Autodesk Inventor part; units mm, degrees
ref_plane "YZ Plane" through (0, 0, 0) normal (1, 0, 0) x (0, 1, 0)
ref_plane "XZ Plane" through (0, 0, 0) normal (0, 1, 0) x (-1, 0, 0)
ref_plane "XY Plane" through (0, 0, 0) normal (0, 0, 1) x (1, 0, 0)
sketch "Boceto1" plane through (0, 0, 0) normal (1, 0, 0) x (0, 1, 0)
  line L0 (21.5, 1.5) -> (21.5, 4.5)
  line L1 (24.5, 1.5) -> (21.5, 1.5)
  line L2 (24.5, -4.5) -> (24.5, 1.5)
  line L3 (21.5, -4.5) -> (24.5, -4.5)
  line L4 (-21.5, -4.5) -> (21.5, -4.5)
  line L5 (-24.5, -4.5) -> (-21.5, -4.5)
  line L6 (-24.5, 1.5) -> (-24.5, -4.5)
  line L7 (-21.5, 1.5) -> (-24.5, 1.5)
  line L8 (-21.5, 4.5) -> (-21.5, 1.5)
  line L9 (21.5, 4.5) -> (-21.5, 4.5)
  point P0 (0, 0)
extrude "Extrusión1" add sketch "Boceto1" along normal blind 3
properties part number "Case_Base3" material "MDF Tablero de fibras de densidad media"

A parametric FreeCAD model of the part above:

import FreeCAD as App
import Part
import Sketcher
Q = App.Units.Quantity


def add_polygon(sketch, points):
    """Adds a closed chain of lines whose ends are joined by coincident constraints."""
    first, n = sketch.GeometryCount, len(points)
    for a, b in zip(points, points[1:] + points[:1]):
        sketch.addGeometry(Part.LineSegment(App.Vector(*a, 0), App.Vector(*b, 0)), False)
    for i in range(n):
        sketch.addConstraint(Sketcher.Constraint("Coincident", first + i, 2, first + (i + 1) % n, 1))

doc = App.newDocument("Part")
body = doc.addObject("PartDesign::Body", "Body")

sketch1 = doc.addObject("Sketcher::SketchObject", "Sketch")
body.addObject(sketch1)
sketch1.AttachmentSupport = (doc.YZ_Plane, [""])
sketch1.MapMode = "FlatFace"
add_polygon(sketch1, [(24.5, 1.5), (21.5, 1.5), (21.5, 4.5), (-21.5, 4.5), (-21.5, 1.5), (-24.5, 1.5), (-24.5, -4.5), (24.5, -4.5)])
sketch1.addConstraint(Sketcher.Constraint("Horizontal", 0))
sketch1.addConstraint(Sketcher.Constraint("Vertical", 1))
sketch1.addConstraint(Sketcher.Constraint("Horizontal", 2))
sketch1.addConstraint(Sketcher.Constraint("Vertical", 3))
sketch1.addConstraint(Sketcher.Constraint("Horizontal", 4))
sketch1.addConstraint(Sketcher.Constraint("Vertical", 5))
sketch1.addConstraint(Sketcher.Constraint("Horizontal", 6))
sketch1.addConstraint(Sketcher.Constraint("Vertical", 7))
sketch1.addConstraint(Sketcher.Constraint("Symmetric", 0, 2, 3, 2, -2))
sketch1.addConstraint(Sketcher.Constraint("Equal", 0, 4))
sketch1.addConstraint(Sketcher.Constraint("Equal", 4, 1))
sketch1.addConstraint(Sketcher.Constraint("DistanceX", 0, 2, 0, 1, Q("3 mm")))
sketch1.addConstraint(Sketcher.Constraint("DistanceX", 2, 2, 2, 1, Q("43 mm")))
sketch1.addConstraint(Sketcher.Constraint("DistanceY", 5, 2, 5, 1, Q("6 mm")))
sketch1.addConstraint(Sketcher.Constraint("DistanceY", -1, 1, 0, 2, Q("1.5 mm")))
pad1 = doc.addObject("PartDesign::Pad", "Pad")
body.addObject(pad1)
pad1.Profile = sketch1
pad1.Length = 3

doc.recompute()
